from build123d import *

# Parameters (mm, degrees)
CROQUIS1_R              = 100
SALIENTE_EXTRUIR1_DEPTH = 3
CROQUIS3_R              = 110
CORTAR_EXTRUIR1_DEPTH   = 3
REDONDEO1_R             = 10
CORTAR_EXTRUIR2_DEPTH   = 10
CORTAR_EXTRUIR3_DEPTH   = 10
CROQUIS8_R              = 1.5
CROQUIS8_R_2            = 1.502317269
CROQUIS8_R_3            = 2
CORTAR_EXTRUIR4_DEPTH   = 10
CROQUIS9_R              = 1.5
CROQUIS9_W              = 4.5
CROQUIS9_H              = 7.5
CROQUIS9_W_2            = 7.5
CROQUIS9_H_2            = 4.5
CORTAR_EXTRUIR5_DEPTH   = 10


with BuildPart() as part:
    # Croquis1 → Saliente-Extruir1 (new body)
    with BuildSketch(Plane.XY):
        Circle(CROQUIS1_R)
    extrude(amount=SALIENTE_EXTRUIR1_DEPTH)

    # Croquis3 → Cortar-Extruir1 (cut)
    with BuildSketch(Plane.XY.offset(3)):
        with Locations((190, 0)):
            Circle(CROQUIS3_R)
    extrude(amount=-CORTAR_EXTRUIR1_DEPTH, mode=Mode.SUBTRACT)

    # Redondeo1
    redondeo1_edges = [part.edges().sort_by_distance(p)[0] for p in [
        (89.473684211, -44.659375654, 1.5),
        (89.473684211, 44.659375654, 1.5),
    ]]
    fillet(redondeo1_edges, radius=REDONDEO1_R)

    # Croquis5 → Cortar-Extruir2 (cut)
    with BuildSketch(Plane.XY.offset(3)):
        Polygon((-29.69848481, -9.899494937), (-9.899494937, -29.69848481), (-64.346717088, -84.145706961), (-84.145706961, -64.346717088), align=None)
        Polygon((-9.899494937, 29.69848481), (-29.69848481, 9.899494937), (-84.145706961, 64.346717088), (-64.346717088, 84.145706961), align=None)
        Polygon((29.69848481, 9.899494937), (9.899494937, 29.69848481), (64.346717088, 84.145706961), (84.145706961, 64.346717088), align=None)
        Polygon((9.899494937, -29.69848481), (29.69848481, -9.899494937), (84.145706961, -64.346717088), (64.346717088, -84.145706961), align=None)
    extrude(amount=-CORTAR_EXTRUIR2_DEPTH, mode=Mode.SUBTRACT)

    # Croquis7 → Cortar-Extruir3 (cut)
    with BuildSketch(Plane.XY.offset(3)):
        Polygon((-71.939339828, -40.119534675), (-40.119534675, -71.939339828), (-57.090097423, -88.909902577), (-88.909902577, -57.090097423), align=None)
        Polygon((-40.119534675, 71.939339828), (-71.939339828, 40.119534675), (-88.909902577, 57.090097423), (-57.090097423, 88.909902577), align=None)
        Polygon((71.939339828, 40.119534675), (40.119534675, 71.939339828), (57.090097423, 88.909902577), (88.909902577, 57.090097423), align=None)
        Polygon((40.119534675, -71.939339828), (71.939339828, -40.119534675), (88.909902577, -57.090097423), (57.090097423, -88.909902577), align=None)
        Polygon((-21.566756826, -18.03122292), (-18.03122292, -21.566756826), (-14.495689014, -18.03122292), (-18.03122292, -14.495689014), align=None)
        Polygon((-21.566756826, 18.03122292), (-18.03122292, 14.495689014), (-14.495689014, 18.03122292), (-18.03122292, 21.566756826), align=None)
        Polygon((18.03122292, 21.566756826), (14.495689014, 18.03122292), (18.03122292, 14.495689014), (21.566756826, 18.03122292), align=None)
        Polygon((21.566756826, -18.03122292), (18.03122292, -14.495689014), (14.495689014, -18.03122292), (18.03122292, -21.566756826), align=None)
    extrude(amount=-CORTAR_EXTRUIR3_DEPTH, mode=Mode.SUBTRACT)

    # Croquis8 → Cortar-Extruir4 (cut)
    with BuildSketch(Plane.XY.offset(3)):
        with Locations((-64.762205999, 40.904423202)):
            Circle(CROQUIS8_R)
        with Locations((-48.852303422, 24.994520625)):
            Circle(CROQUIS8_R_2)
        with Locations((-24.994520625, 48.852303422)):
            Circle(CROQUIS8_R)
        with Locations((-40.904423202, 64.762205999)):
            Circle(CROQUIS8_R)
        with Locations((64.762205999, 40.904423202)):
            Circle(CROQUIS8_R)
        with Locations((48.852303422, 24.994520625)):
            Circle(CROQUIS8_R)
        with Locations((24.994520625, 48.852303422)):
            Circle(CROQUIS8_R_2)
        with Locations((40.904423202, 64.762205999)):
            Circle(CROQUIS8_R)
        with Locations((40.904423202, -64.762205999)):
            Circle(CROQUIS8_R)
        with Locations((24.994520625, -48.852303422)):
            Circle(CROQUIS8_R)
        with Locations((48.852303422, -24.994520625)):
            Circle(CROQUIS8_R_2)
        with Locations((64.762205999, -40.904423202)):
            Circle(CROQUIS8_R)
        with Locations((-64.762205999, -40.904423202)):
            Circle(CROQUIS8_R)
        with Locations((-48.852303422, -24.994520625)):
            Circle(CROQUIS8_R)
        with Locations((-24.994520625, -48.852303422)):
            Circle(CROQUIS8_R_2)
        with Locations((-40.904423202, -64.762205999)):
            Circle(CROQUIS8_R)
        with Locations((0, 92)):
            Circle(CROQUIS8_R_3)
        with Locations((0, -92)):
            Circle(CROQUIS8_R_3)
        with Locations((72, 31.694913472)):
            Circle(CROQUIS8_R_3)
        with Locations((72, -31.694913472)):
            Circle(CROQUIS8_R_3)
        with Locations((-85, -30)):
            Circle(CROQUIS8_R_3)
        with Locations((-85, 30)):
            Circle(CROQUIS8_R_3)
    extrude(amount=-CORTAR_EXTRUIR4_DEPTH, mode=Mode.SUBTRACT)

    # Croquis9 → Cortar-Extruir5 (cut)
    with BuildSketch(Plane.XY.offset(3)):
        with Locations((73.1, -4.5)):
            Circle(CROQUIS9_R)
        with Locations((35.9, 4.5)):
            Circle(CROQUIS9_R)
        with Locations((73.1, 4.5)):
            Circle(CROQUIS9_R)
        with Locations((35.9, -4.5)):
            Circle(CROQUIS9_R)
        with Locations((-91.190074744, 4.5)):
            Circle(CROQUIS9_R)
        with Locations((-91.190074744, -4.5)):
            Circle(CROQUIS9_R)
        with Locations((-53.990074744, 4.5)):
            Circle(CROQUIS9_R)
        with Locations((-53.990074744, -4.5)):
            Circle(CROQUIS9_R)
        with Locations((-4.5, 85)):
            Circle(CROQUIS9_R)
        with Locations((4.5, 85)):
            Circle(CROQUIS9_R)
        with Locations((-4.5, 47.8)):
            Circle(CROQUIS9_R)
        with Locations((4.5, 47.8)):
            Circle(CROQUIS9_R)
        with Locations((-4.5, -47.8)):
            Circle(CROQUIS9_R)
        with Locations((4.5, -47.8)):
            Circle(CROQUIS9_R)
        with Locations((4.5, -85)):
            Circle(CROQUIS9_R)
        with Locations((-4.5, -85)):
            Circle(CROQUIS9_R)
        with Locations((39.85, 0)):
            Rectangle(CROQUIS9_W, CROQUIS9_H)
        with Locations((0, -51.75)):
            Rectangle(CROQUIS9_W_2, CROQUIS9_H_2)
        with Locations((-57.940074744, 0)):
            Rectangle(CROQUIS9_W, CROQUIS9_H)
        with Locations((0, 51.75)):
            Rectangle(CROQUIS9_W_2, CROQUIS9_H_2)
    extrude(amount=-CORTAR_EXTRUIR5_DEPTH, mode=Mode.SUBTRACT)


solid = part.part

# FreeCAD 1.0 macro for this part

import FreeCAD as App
import Part
import Sketcher
from FreeCAD import Vector


def edges_at(feature, points):
    """Names of the edges that pass closest to the given points."""
    edges = feature.Shape.Edges
    near = lambda p: min(range(len(edges)), key=lambda i: edges[i].distToShape(Part.Vertex(*p))[0])
    return sorted({f"Edge{near(p) + 1}" for p in points})


def add_polygon(sketch, points):
    """Adds a closed chain of lines whose ends are joined by coincident constraints."""
    first, n = sketch.GeometryCount, len(points)
    for a, b in zip(points, points[1:] + points[:1]):
        sketch.addGeometry(Part.LineSegment(App.Vector(*a, 0), App.Vector(*b, 0)), False)
    for i in range(n):
        sketch.addConstraint(Sketcher.Constraint("Coincident", first + i, 2, first + (i + 1) % n, 1))

doc = App.newDocument("Part")
params = doc.addObject("Spreadsheet::Sheet", "Params")
for row, (alias, value) in enumerate([
    ("sketch1_diameter", "200 mm"),
    ("pad1_length", "3 mm"),
    ("sketch2_diameter", "220 mm"),
    ("pocket1_length", "3 mm"),
    ("fillet_radius", "10 mm"),
    ("sketch3_length", "28 mm"),
    ("sketch3_length2", "77 mm"),
    ("pocket2_length", "10 mm"),
    ("sketch4_length", "45 mm"),
    ("sketch4_length2", "24 mm"),
    ("sketch4_length3", "5 mm"),
    ("pocket3_length", "10 mm"),
    ("sketch5_diameter", "3 mm"),
    ("sketch5_diameter2", "4 mm"),
    ("pocket4_length", "10 mm"),
    ("sketch6_diameter", "3 mm"),
    ("sketch6_width", "4.5 mm"),
    ("sketch6_width2", "7.5 mm"),
    ("pocket5_length", "10 mm"),
], start=1):
    params.set(f"A{row}", alias)
    params.set(f"B{row}", "=" + value)
    params.setAlias(f"B{row}", alias)

body = doc.addObject("PartDesign::Body", "Body")

sketch1 = doc.addObject("Sketcher::SketchObject", "Sketch")
body.addObject(sketch1)
sketch1.AttachmentSupport = (doc.XY_Plane, [""])
sketch1.MapMode = "FlatFace"
sketch1.addGeometry(Part.Circle(Vector(0, 0, 0), Vector(0, 0, 1), 100), False)
sketch1.addConstraint([
    Sketcher.Constraint("Coincident", 0, 3, -1, 1),
    Sketcher.Constraint("Diameter", 0, 200.0),
])
sketch1.setExpression("Constraints[1]", "Params.sketch1_diameter")
pad1 = doc.addObject("PartDesign::Pad", "Pad")
body.addObject(pad1)
pad1.Profile = sketch1
pad1.setExpression("Length", "Params.pad1_length")

sketch2 = doc.addObject("Sketcher::SketchObject", "Sketch001")
body.addObject(sketch2)
sketch2.AttachmentSupport = (doc.XY_Plane, [""])
sketch2.MapMode = "FlatFace"
sketch2.AttachmentOffset = App.Placement(Vector(0, 0, 3), App.Rotation())
sketch2.addGeometry(Part.Circle(Vector(190, 0, 0), Vector(0, 0, 1), 110), False)
sketch2.addConstraint([
    Sketcher.Constraint("PointOnObject", 0, 3, -1),
    Sketcher.Constraint("Diameter", 0, 220.0),
    Sketcher.Constraint("DistanceX", -1, 1, 0, 3, 190.0),
])
sketch2.setExpression("Constraints[1]", "Params.sketch2_diameter")
pocket1 = doc.addObject("PartDesign::Pocket", "Pocket")
body.addObject(pocket1)
pocket1.Profile = sketch2
pocket1.setExpression("Length", "Params.pocket1_length")
doc.recompute()

fillet = doc.addObject("PartDesign::Fillet", "Fillet")
body.addObject(fillet)
fillet.Base = (pocket1, edges_at(pocket1, [(89.474, -44.659, 1.5), (89.474, 44.659, 1.5)]))
fillet.setExpression("Radius", "Params.fillet_radius")

sketch3 = doc.addObject("Sketcher::SketchObject", "Sketch002")
body.addObject(sketch3)
sketch3.AttachmentSupport = (doc.XY_Plane, [""])
sketch3.MapMode = "FlatFace"
sketch3.AttachmentOffset = App.Placement(Vector(0, 0, 3), App.Rotation())
add_polygon(sketch3, [(-10, -30), (-30, -10), (-84, -64), (-64, -84)])
add_polygon(sketch3, [(-30, 10), (-10, 30), (-64, 84), (-84, 64)])
add_polygon(sketch3, [(10, 30), (30, 10), (84, 64), (64, 84)])
add_polygon(sketch3, [(30, -10), (10, -30), (64, -84), (84, -64)])
sketch3.addConstraint([
    Sketcher.Constraint("Symmetric", 0, 2, 8, 2, -1, 1),
    Sketcher.Constraint("Symmetric", 1, 2, 9, 2, -1, 1),
    Sketcher.Constraint("Symmetric", 2, 2, 10, 2, -1, 1),
    Sketcher.Constraint("Symmetric", 3, 2, 11, 2, -1, 1),
    Sketcher.Constraint("Symmetric", 4, 2, 12, 2, -1, 1),
    Sketcher.Constraint("Symmetric", 5, 2, 13, 2, -1, 1),
    Sketcher.Constraint("Symmetric", 6, 2, 14, 2, -1, 1),
    Sketcher.Constraint("Symmetric", 7, 2, 15, 2, -1, 1),
    Sketcher.Constraint("Symmetric", 7, 2, 8, 2, -2),
    Sketcher.Constraint("Symmetric", 6, 2, 9, 2, -2),
    Sketcher.Constraint("Symmetric", 5, 2, 10, 2, -2),
    Sketcher.Constraint("Symmetric", 4, 2, 11, 2, -2),
    Sketcher.Constraint("Perpendicular", 0, 1),
    Sketcher.Constraint("Perpendicular", 1, 2),
    Sketcher.Constraint("Perpendicular", 2, 3),
    Sketcher.Constraint("Parallel", 3, 4),
    Sketcher.Constraint("Distance", 0, 28.0),
    Sketcher.Constraint("Distance", 1, 77.0),
    Sketcher.Constraint("DistanceY", 1, 2, 4, 2, 94.045202),
    Sketcher.Constraint("DistanceX", 5, 2, 8, 2, 94.045202),
])
sketch3.setExpression("Constraints[32]", "Params.sketch3_length")
sketch3.setExpression("Constraints[33]", "Params.sketch3_length2")
pocket2 = doc.addObject("PartDesign::Pocket", "Pocket001")
body.addObject(pocket2)
pocket2.Profile = sketch3
pocket2.setExpression("Length", "Params.pocket2_length")

sketch4 = doc.addObject("Sketcher::SketchObject", "Sketch003")
body.addObject(sketch4)
sketch4.AttachmentSupport = (doc.XY_Plane, [""])
sketch4.MapMode = "FlatFace"
sketch4.AttachmentOffset = App.Placement(Vector(0, 0, 3), App.Rotation())
add_polygon(sketch4, [(-40, -72), (-72, -40), (-89, -57), (-57, -89)])
add_polygon(sketch4, [(-72, 40), (-40, 72), (-57, 89), (-89, 57)])
add_polygon(sketch4, [(40, 72), (72, 40), (89, 57), (57, 89)])
add_polygon(sketch4, [(72, -40), (40, -72), (57, -89), (89, -57)])
add_polygon(sketch4, [(-22, -18), (-18, -22), (-14, -18), (-18, -14)])
add_polygon(sketch4, [(-22, 18), (-18, 14), (-14, 18), (-18, 22)])
add_polygon(sketch4, [(18, 22), (14, 18), (18, 14), (22, 18)])
add_polygon(sketch4, [(22, -18), (18, -14), (14, -18), (18, -22)])
sketch4.addConstraint([
    Sketcher.Constraint("Symmetric", 0, 2, 8, 2, -1, 1),
    Sketcher.Constraint("Symmetric", 1, 2, 9, 2, -1, 1),
    Sketcher.Constraint("Symmetric", 2, 2, 10, 2, -1, 1),
    Sketcher.Constraint("Symmetric", 3, 2, 11, 2, -1, 1),
    Sketcher.Constraint("Symmetric", 4, 2, 12, 2, -1, 1),
    Sketcher.Constraint("Symmetric", 5, 2, 13, 2, -1, 1),
    Sketcher.Constraint("Symmetric", 6, 2, 14, 2, -1, 1),
    Sketcher.Constraint("Symmetric", 7, 2, 15, 2, -1, 1),
    Sketcher.Constraint("Symmetric", 17, 2, 24, 2, -1, 1),
    Sketcher.Constraint("Symmetric", 18, 2, 25, 2, -1, 1),
    Sketcher.Constraint("Symmetric", 19, 2, 26, 2, -1, 1),
    Sketcher.Constraint("Symmetric", 16, 2, 27, 2, -1, 1),
    Sketcher.Constraint("Symmetric", 20, 2, 28, 2, -1, 1),
    Sketcher.Constraint("Symmetric", 21, 2, 29, 2, -1, 1),
    Sketcher.Constraint("Symmetric", 22, 2, 30, 2, -1, 1),
    Sketcher.Constraint("Symmetric", 23, 2, 31, 2, -1, 1),
    Sketcher.Constraint("Symmetric", 7, 2, 8, 2, -2),
    Sketcher.Constraint("Symmetric", 6, 2, 9, 2, -2),
    Sketcher.Constraint("Symmetric", 5, 2, 10, 2, -2),
    Sketcher.Constraint("Symmetric", 4, 2, 11, 2, -2),
    Sketcher.Constraint("Symmetric", 21, 2, 24, 2, -2),
    Sketcher.Constraint("Symmetric", 20, 2, 25, 2, -2),
    Sketcher.Constraint("Symmetric", 23, 2, 26, 2, -2),
    Sketcher.Constraint("Symmetric", 22, 2, 27, 2, -2),
    Sketcher.Constraint("Perpendicular", 0, 1),
    Sketcher.Constraint("Perpendicular", 1, 2),
    Sketcher.Constraint("Perpendicular", 2, 3),
    Sketcher.Constraint("Parallel", 3, 4),
    Sketcher.Constraint("Parallel", 15, 16),
    Sketcher.Constraint("Perpendicular", 16, 17),
    Sketcher.Constraint("Perpendicular", 17, 18),
    Sketcher.Constraint("Perpendicular", 18, 19),
    Sketcher.Constraint("Horizontal", 17, 2, 19, 2),
    Sketcher.Constraint("Distance", 0, 45.0),
    Sketcher.Constraint("Distance", 1, 24.0),
    Sketcher.Constraint("Distance", 16, 5.0),
    Sketcher.Constraint("DistanceY", 1, 2, 5, 2, 146.0),
    Sketcher.Constraint("DistanceX", 5, 2, 9, 2, 146.0),
    Sketcher.Constraint("DistanceX", 17, 2, -1, 1, 14.495689),
    Sketcher.Constraint("DistanceY", 18, 2, -1, 1, 14.495689),
])
sketch4.setExpression("Constraints[65]", "Params.sketch4_length")
sketch4.setExpression("Constraints[66]", "Params.sketch4_length2")
sketch4.setExpression("Constraints[67]", "Params.sketch4_length3")
pocket3 = doc.addObject("PartDesign::Pocket", "Pocket002")
body.addObject(pocket3)
pocket3.Profile = sketch4
pocket3.setExpression("Length", "Params.pocket3_length")

sketch5 = doc.addObject("Sketcher::SketchObject", "Sketch004")
body.addObject(sketch5)
sketch5.AttachmentSupport = (doc.XY_Plane, [""])
sketch5.MapMode = "FlatFace"
sketch5.AttachmentOffset = App.Placement(Vector(0, 0, 3), App.Rotation())
sketch5.addGeometry([
    Part.Circle(Vector(-64.8, 40.9, 0), Vector(0, 0, 1), 1.5),
    Part.Circle(Vector(-48.9, 25, 0), Vector(0, 0, 1), 1.5),
    Part.Circle(Vector(-25, 48.9, 0), Vector(0, 0, 1), 1.5),
    Part.Circle(Vector(-40.9, 64.8, 0), Vector(0, 0, 1), 1.5),
    Part.Circle(Vector(64.8, 40.9, 0), Vector(0, 0, 1), 1.5),
    Part.Circle(Vector(48.9, 25, 0), Vector(0, 0, 1), 1.5),
    Part.Circle(Vector(25, 48.9, 0), Vector(0, 0, 1), 1.5),
    Part.Circle(Vector(40.9, 64.8, 0), Vector(0, 0, 1), 1.5),
    Part.Circle(Vector(40.9, -64.8, 0), Vector(0, 0, 1), 1.5),
    Part.Circle(Vector(25, -48.9, 0), Vector(0, 0, 1), 1.5),
    Part.Circle(Vector(48.9, -25, 0), Vector(0, 0, 1), 1.5),
    Part.Circle(Vector(64.8, -40.9, 0), Vector(0, 0, 1), 1.5),
    Part.Circle(Vector(-64.8, -40.9, 0), Vector(0, 0, 1), 1.5),
    Part.Circle(Vector(-48.9, -25, 0), Vector(0, 0, 1), 1.5),
    Part.Circle(Vector(-25, -48.9, 0), Vector(0, 0, 1), 1.5),
    Part.Circle(Vector(-40.9, -64.8, 0), Vector(0, 0, 1), 1.5),
    Part.Circle(Vector(0, 92, 0), Vector(0, 0, 1), 2),
    Part.Circle(Vector(0, -92, 0), Vector(0, 0, 1), 2),
    Part.Circle(Vector(72, 31.7, 0), Vector(0, 0, 1), 2),
    Part.Circle(Vector(72, -31.7, 0), Vector(0, 0, 1), 2),
    Part.Circle(Vector(-85, -30, 0), Vector(0, 0, 1), 2),
    Part.Circle(Vector(-85, 30, 0), Vector(0, 0, 1), 2),
], False)
sketch5.addConstraint([
    Sketcher.Constraint("Equal", 0, 2),
    Sketcher.Constraint("Equal", 2, 3),
    Sketcher.Constraint("Equal", 3, 4),
    Sketcher.Constraint("Equal", 4, 5),
    Sketcher.Constraint("Equal", 1, 6),
    Sketcher.Constraint("Equal", 5, 7),
    Sketcher.Constraint("Equal", 7, 8),
    Sketcher.Constraint("Equal", 8, 9),
    Sketcher.Constraint("Equal", 6, 10),
    Sketcher.Constraint("Equal", 9, 11),
    Sketcher.Constraint("Equal", 11, 12),
    Sketcher.Constraint("Equal", 12, 13),
    Sketcher.Constraint("Equal", 10, 14),
    Sketcher.Constraint("Equal", 13, 15),
    Sketcher.Constraint("Equal", 16, 17),
    Sketcher.Constraint("Equal", 17, 18),
    Sketcher.Constraint("Equal", 18, 19),
    Sketcher.Constraint("Equal", 19, 20),
    Sketcher.Constraint("Equal", 20, 21),
    Sketcher.Constraint("Symmetric", 3, 3, 8, 3, -1, 1),
    Sketcher.Constraint("Symmetric", 2, 3, 9, 3, -1, 1),
    Sketcher.Constraint("Symmetric", 1, 3, 10, 3, -1, 1),
    Sketcher.Constraint("Symmetric", 0, 3, 11, 3, -1, 1),
    Sketcher.Constraint("Symmetric", 4, 3, 12, 3, -1, 1),
    Sketcher.Constraint("Symmetric", 5, 3, 13, 3, -1, 1),
    Sketcher.Constraint("Symmetric", 6, 3, 14, 3, -1, 1),
    Sketcher.Constraint("Symmetric", 7, 3, 15, 3, -1, 1),
    Sketcher.Constraint("Symmetric", 16, 3, 17, 3, -1, 1),
    Sketcher.Constraint("Symmetric", 0, 3, 4, 3, -2),
    Sketcher.Constraint("Symmetric", 1, 3, 5, 3, -2),
    Sketcher.Constraint("Symmetric", 2, 3, 6, 3, -2),
    Sketcher.Constraint("Symmetric", 3, 3, 7, 3, -2),
    Sketcher.Constraint("Symmetric", 18, 3, 19, 3, -1),
    Sketcher.Constraint("Symmetric", 20, 3, 21, 3, -1),
    Sketcher.Constraint("PointOnObject", 16, 3, -2),
    Sketcher.Constraint("Diameter", 0, 3.0),
    Sketcher.Constraint("Diameter", 16, 4.0),
    Sketcher.Constraint("DistanceY", -1, 1, 16, 3, 92.0),
    Sketcher.Constraint("DistanceX", -1, 1, 18, 3, 72.0),
    Sketcher.Constraint("DistanceX", 20, 3, -1, 1, 85.0),
    Sketcher.Constraint("DistanceY", 20, 3, -1, 1, 30.0),
    Sketcher.Constraint("Diameter", 1, 3.004635),
    Sketcher.Constraint("DistanceY", -1, 1, 1, 3, 24.994521),
    Sketcher.Constraint("DistanceX", 2, 3, -1, 1, 24.994521),
    Sketcher.Constraint("DistanceY", 0, 3, 2, 3, 7.94788),
    Sketcher.Constraint("DistanceX", 1, 3, 3, 3, 7.94788),
    Sketcher.Constraint("DistanceX", 3, 3, 4, 3, 105.666629),
    Sketcher.Constraint("DistanceX", 0, 3, 4, 3, 129.524412),
    Sketcher.Constraint("DistanceY", 8, 3, 4, 3, 105.666629),
    Sketcher.Constraint("DistanceY", 8, 3, 7, 3, 129.524412),
    Sketcher.Constraint("DistanceY", 18, 3, 4, 3, 9.20951),
])
sketch5.setExpression("Constraints[35]", "Params.sketch5_diameter")
sketch5.setExpression("Constraints[36]", "Params.sketch5_diameter2")
pocket4 = doc.addObject("PartDesign::Pocket", "Pocket003")
body.addObject(pocket4)
pocket4.Profile = sketch5
pocket4.setExpression("Length", "Params.pocket4_length")

sketch6 = doc.addObject("Sketcher::SketchObject", "Sketch005")
body.addObject(sketch6)
sketch6.AttachmentSupport = (doc.XY_Plane, [""])
sketch6.MapMode = "FlatFace"
sketch6.AttachmentOffset = App.Placement(Vector(0, 0, 3), App.Rotation())
sketch6.addGeometry(Part.Circle(Vector(73.1, -4.5, 0), Vector(0, 0, 1), 1.5), False)
sketch6.addGeometry(Part.Circle(Vector(35.9, 4.5, 0), Vector(0, 0, 1), 1.5), False)
sketch6.addGeometry(Part.Circle(Vector(73.1, 4.5, 0), Vector(0, 0, 1), 1.5), False)
sketch6.addGeometry(Part.Circle(Vector(35.9, -4.5, 0), Vector(0, 0, 1), 1.5), False)
sketch6.addGeometry(Part.Circle(Vector(-91.2, 4.5, 0), Vector(0, 0, 1), 1.5), False)
sketch6.addGeometry(Part.Circle(Vector(-91.2, -4.5, 0), Vector(0, 0, 1), 1.5), False)
sketch6.addGeometry(Part.Circle(Vector(-54, 4.5, 0), Vector(0, 0, 1), 1.5), False)
sketch6.addGeometry(Part.Circle(Vector(-54, -4.5, 0), Vector(0, 0, 1), 1.5), False)
sketch6.addGeometry(Part.Circle(Vector(-4.5, 85, 0), Vector(0, 0, 1), 1.5), False)
sketch6.addGeometry(Part.Circle(Vector(4.5, 85, 0), Vector(0, 0, 1), 1.5), False)
sketch6.addGeometry(Part.Circle(Vector(-4.5, 47.8, 0), Vector(0, 0, 1), 1.5), False)
sketch6.addGeometry(Part.Circle(Vector(4.5, 47.8, 0), Vector(0, 0, 1), 1.5), False)
sketch6.addGeometry(Part.Circle(Vector(-4.5, -47.8, 0), Vector(0, 0, 1), 1.5), False)
sketch6.addGeometry(Part.Circle(Vector(4.5, -47.8, 0), Vector(0, 0, 1), 1.5), False)
sketch6.addGeometry(Part.Circle(Vector(4.5, -85, 0), Vector(0, 0, 1), 1.5), False)
sketch6.addGeometry(Part.Circle(Vector(-4.5, -85, 0), Vector(0, 0, 1), 1.5), False)
add_polygon(sketch6, [(37.6, 3.8), (37.6, -3.8), (42.1, -3.8), (42.1, 3.8)])
add_polygon(sketch6, [(-3.8, -49.5), (-3.8, -54), (3.8, -54), (3.8, -49.5)])
add_polygon(sketch6, [(-60.2, 3.8), (-60.2, -3.8), (-55.7, -3.8), (-55.7, 3.8)])
add_polygon(sketch6, [(-3.8, 54), (-3.8, 49.5), (3.8, 49.5), (3.8, 54)])
sketch6.addConstraint([
    Sketcher.Constraint("Vertical", 16),
    Sketcher.Constraint("Horizontal", 17),
    Sketcher.Constraint("Vertical", 18),
    Sketcher.Constraint("Horizontal", 19),
    Sketcher.Constraint("Vertical", 20),
    Sketcher.Constraint("Horizontal", 21),
    Sketcher.Constraint("Vertical", 22),
    Sketcher.Constraint("Horizontal", 23),
    Sketcher.Constraint("Vertical", 24),
    Sketcher.Constraint("Horizontal", 25),
    Sketcher.Constraint("Vertical", 26),
    Sketcher.Constraint("Horizontal", 27),
    Sketcher.Constraint("Vertical", 28),
    Sketcher.Constraint("Horizontal", 29),
    Sketcher.Constraint("Vertical", 30),
    Sketcher.Constraint("Horizontal", 31),
    Sketcher.Constraint("Equal", 0, 1),
    Sketcher.Constraint("Equal", 1, 2),
    Sketcher.Constraint("Equal", 2, 3),
    Sketcher.Constraint("Equal", 3, 4),
    Sketcher.Constraint("Equal", 4, 5),
    Sketcher.Constraint("Equal", 5, 6),
    Sketcher.Constraint("Equal", 6, 7),
    Sketcher.Constraint("Equal", 7, 8),
    Sketcher.Constraint("Equal", 8, 9),
    Sketcher.Constraint("Equal", 9, 10),
    Sketcher.Constraint("Equal", 10, 11),
    Sketcher.Constraint("Equal", 11, 12),
    Sketcher.Constraint("Equal", 12, 13),
    Sketcher.Constraint("Equal", 13, 14),
    Sketcher.Constraint("Equal", 14, 15),
    Sketcher.Constraint("Symmetric", 11, 3, 12, 3, -1, 1),
    Sketcher.Constraint("Symmetric", 10, 3, 13, 3, -1, 1),
    Sketcher.Constraint("Symmetric", 8, 3, 14, 3, -1, 1),
    Sketcher.Constraint("Symmetric", 9, 3, 15, 3, -1, 1),
    Sketcher.Constraint("Symmetric", 22, 2, 28, 2, -1, 1),
    Sketcher.Constraint("Symmetric", 20, 2, 30, 2, -1, 1),
    Sketcher.Constraint("Symmetric", 8, 3, 9, 3, -2),
    Sketcher.Constraint("Symmetric", 10, 3, 11, 3, -2),
    Sketcher.Constraint("Symmetric", 0, 3, 2, 3, -1),
    Sketcher.Constraint("Symmetric", 1, 3, 3, 3, -1),
    Sketcher.Constraint("Symmetric", 4, 3, 5, 3, -1),
    Sketcher.Constraint("Symmetric", 6, 3, 7, 3, -1),
    Sketcher.Constraint("Horizontal", 1, 3, 2, 3),
    Sketcher.Constraint("Horizontal", 2, 3, 4, 3),
    Sketcher.Constraint("Horizontal", 4, 3, 6, 3),
    Sketcher.Constraint("Horizontal", 17, 2, 24, 2),
    Sketcher.Constraint("Horizontal", 19, 2, 26, 2),
    Sketcher.Constraint("Vertical", 8, 3, 10, 3),
    Sketcher.Constraint("Vertical", 23, 2, 28, 2),
    Sketcher.Constraint("Equal", 19, 25),
    Sketcher.Constraint("Equal", 31, 16),
    Sketcher.Constraint("Equal", 27, 20),
    Sketcher.Constraint("Diameter", 0, 3.0),
    Sketcher.Constraint("DistanceX", 17, 1, 17, 2, 4.5),
    Sketcher.Constraint("DistanceX", 21, 1, 21, 2, 7.5),
    Sketcher.Constraint("DistanceY", -1, 1, 8, 3, 85.0),
    Sketcher.Constraint("DistanceY", 20, 2, -1, 1, 54.0),
    Sketcher.Constraint("DistanceY", 0, 3, 1, 3, 9.0),
    Sketcher.Constraint("DistanceX", 8, 3, 9, 3, 9.0),
    Sketcher.Constraint("DistanceX", 17, 2, 0, 3, 31.0),
    Sketcher.Constraint("DistanceX", 5, 3, 24, 2, 31.0),
    Sketcher.Constraint("DistanceX", -1, 1, 0, 3, 73.1),
    Sketcher.Constraint("DistanceX", -1, 1, 1, 3, 35.9),
    Sketcher.Constraint("DistanceY", -1, 1, 10, 3, 47.8),
    Sketcher.Constraint("DistanceX", 4, 3, 6, 3, 37.2),
    Sketcher.Constraint("DistanceY", 16, 2, -1, 1, 3.75),
    Sketcher.Constraint("DistanceX", 4, 3, -1, 1, 91.190075),
])
sketch6.setExpression("Constraints[69]", "Params.sketch6_diameter")
sketch6.setExpression("Constraints[70]", "Params.sketch6_width")
sketch6.setExpression("Constraints[71]", "Params.sketch6_width2")
pocket5 = doc.addObject("PartDesign::Pocket", "Pocket004")
body.addObject(pocket5)
pocket5.Profile = sketch6
pocket5.setExpression("Length", "Params.pocket5_length")

doc.recompute()
